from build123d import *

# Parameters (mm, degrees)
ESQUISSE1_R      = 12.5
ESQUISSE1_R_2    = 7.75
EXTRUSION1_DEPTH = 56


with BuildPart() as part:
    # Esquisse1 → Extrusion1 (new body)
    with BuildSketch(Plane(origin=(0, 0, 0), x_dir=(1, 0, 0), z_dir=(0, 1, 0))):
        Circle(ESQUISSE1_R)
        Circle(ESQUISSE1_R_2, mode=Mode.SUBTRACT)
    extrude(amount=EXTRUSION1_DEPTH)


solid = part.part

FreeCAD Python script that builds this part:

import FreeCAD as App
import Part
import Sketcher

V = App.Vector

doc = App.newDocument("Part")
body = doc.addObject("PartDesign::Body", "Body")

# Sketch on XZ plane
sketch1 = body.newObject("Sketcher::SketchObject", "Sketch")
sketch1.AttachmentSupport = (doc.getObject("XZ_Plane"), [""])
sketch1.MapMode = "FlatFace"
sketch1.addGeometry(Part.Circle(V(0, 0, 0), V(0, 0, 1), 12), False)
sketch1.addGeometry(Part.Circle(V(0, 0, 0), V(0, 0, 1), 8), False)
sketch1.addConstraint(Sketcher.Constraint("Coincident", 0, 3, -1, 1))
sketch1.addConstraint(Sketcher.Constraint("Coincident", 1, 3, -1, 1))
sketch1.addConstraint(Sketcher.Constraint("Diameter", 0, 25.0))
sketch1.addConstraint(Sketcher.Constraint("Diameter", 1, 15.5))
pad1 = body.newObject("PartDesign::Pad", "Pad")
pad1.Profile = sketch1
pad1.Length = 56
pad1.Reversed = True

doc.recompute()
